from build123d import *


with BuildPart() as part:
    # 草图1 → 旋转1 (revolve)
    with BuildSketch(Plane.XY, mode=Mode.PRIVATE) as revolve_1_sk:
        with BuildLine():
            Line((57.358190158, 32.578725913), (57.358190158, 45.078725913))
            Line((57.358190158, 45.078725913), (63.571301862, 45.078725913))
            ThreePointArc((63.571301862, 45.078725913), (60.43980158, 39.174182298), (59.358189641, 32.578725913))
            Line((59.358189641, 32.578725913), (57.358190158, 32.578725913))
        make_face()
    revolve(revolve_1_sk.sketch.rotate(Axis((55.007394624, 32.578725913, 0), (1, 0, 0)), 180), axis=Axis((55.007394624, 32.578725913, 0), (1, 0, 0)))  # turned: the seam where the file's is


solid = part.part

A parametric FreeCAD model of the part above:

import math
import FreeCAD as App
import Part
import Sketcher

V = App.Vector

doc = App.newDocument("Part")
body = doc.addObject("PartDesign::Body", "Body")

# Sketch on XY plane
sketch1 = doc.addObject("Sketcher::SketchObject", "Sketch")
body.addObject(sketch1)
sketch1.AttachmentSupport = (doc.XY_Plane, [""])
sketch1.MapMode = "FlatFace"
sketch1.addGeometry([
    Part.LineSegment(V(57.4, 45.1, 0), V(57.4, 32.6, 0)),
    Part.LineSegment(V(57.4, 32.6, 0), V(59.4, 32.6, 0)),
    Part.ArcOfCircle(Part.Circle(V(80, 32.6, 0), V(0, 0, 1), 20.6), math.radians(143), math.radians(180)),
    Part.LineSegment(V(63.6, 45.1, 0), V(57.4, 45.1, 0)),
], False)
sketch1.addGeometry(Part.LineSegment(V(57.4, 32.6, 0), V(80, 32.6, 0)), True)  # axis
sketch1.addConstraint([
    Sketcher.Constraint("Coincident", 0, 2, 1, 1),
    Sketcher.Constraint("Coincident", 1, 2, 2, 2),
    Sketcher.Constraint("Coincident", 2, 1, 3, 1),
    Sketcher.Constraint("Coincident", 3, 2, 0, 1),
    Sketcher.Constraint("Vertical", 0),
    Sketcher.Constraint("Horizontal", 1),
    Sketcher.Constraint("Horizontal", 3),
    Sketcher.Constraint("Horizontal", 4),
    Sketcher.Constraint("Coincident", 4, 1, 0, 2),
    Sketcher.Constraint("Vertical", 2, 3, 4, 2),
    Sketcher.Constraint("DistanceX", 1, 1, 1, 2, 1.999999),
    Sketcher.Constraint("Radius", 2, 20.65),
    Sketcher.Constraint("DistanceY", 0, 2, 0, 1, 12.5),
    Sketcher.Constraint("DistanceX", 3, 2, 3, 1, 6.213112),
    Sketcher.Constraint("DistanceX", -1, 1, 2, 1, 63.571302),
    Sketcher.Constraint("DistanceY", -1, 1, 2, 3, 32.578677),
])
revolution = doc.addObject("PartDesign::Revolution", "Revolution")
body.addObject(revolution)
revolution.Profile = sketch1
revolution.ReferenceAxis = (sketch1, ["Axis0"])
revolution.Angle = 360

doc.recompute()
